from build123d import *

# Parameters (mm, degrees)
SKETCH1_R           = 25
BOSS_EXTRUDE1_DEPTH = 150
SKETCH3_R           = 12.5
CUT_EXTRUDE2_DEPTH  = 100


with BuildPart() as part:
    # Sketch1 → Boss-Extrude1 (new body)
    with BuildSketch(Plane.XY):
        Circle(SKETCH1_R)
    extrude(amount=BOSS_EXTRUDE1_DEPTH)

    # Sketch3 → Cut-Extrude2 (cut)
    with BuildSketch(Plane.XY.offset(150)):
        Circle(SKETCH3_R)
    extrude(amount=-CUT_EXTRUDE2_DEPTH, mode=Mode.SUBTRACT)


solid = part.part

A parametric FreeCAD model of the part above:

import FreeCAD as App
import Part
import Sketcher
from FreeCAD import Vector
Q = App.Units.Quantity

doc = App.newDocument("Part")
params = doc.addObject("Spreadsheet::Sheet", "Params")
for row, (alias, value) in enumerate([
    ("sketch1_diameter", "50 mm"),
    ("pad1_length", "150 mm"),
    ("sketch2_diameter", "25 mm"),
    ("pocket1_length", "100 mm"),
], start=1):
    params.set(f"A{row}", alias)
    params.set(f"B{row}", "=" + value)
    params.setAlias(f"B{row}", alias)

body = doc.addObject("PartDesign::Body", "Body")

# Sketch on XY plane
sketch1 = body.newObject("Sketcher::SketchObject", "Sketch")
sketch1.AttachmentSupport = (doc.getObject("XY_Plane"), [""])
sketch1.MapMode = "FlatFace"
sketch1.addGeometry(Part.Circle(Vector(0, 0, 0), Vector(0, 0, 1), 25), False)
sketch1.addConstraint(Sketcher.Constraint("Coincident", 0, 3, -1, 1))
sketch1.addConstraint(Sketcher.Constraint("Diameter", 0, Q("50 mm")))
sketch1.setExpression("Constraints[1]", "Params.sketch1_diameter")
pad1 = body.newObject("PartDesign::Pad", "Pad")
pad1.Profile = sketch1
pad1.setExpression("Length", "Params.pad1_length")

# Sketch on XY plane
sketch2 = body.newObject("Sketcher::SketchObject", "Sketch001")
sketch2.AttachmentSupport = (doc.getObject("XY_Plane"), [""])
sketch2.MapMode = "FlatFace"
sketch2.AttachmentOffset = App.Placement(Vector(0, 0, 150), App.Rotation())
sketch2.addGeometry(Part.Circle(Vector(0, 0, 0), Vector(0, 0, 1), 12.5), False)
sketch2.addConstraint(Sketcher.Constraint("Coincident", 0, 3, -1, 1))
sketch2.addConstraint(Sketcher.Constraint("Diameter", 0, Q("25 mm")))
sketch2.setExpression("Constraints[1]", "Params.sketch2_diameter")
pocket1 = body.newObject("PartDesign::Pocket", "Pocket")
pocket1.Profile = sketch2
pocket1.setExpression("Length", "Params.pocket1_length")

doc.recompute()
